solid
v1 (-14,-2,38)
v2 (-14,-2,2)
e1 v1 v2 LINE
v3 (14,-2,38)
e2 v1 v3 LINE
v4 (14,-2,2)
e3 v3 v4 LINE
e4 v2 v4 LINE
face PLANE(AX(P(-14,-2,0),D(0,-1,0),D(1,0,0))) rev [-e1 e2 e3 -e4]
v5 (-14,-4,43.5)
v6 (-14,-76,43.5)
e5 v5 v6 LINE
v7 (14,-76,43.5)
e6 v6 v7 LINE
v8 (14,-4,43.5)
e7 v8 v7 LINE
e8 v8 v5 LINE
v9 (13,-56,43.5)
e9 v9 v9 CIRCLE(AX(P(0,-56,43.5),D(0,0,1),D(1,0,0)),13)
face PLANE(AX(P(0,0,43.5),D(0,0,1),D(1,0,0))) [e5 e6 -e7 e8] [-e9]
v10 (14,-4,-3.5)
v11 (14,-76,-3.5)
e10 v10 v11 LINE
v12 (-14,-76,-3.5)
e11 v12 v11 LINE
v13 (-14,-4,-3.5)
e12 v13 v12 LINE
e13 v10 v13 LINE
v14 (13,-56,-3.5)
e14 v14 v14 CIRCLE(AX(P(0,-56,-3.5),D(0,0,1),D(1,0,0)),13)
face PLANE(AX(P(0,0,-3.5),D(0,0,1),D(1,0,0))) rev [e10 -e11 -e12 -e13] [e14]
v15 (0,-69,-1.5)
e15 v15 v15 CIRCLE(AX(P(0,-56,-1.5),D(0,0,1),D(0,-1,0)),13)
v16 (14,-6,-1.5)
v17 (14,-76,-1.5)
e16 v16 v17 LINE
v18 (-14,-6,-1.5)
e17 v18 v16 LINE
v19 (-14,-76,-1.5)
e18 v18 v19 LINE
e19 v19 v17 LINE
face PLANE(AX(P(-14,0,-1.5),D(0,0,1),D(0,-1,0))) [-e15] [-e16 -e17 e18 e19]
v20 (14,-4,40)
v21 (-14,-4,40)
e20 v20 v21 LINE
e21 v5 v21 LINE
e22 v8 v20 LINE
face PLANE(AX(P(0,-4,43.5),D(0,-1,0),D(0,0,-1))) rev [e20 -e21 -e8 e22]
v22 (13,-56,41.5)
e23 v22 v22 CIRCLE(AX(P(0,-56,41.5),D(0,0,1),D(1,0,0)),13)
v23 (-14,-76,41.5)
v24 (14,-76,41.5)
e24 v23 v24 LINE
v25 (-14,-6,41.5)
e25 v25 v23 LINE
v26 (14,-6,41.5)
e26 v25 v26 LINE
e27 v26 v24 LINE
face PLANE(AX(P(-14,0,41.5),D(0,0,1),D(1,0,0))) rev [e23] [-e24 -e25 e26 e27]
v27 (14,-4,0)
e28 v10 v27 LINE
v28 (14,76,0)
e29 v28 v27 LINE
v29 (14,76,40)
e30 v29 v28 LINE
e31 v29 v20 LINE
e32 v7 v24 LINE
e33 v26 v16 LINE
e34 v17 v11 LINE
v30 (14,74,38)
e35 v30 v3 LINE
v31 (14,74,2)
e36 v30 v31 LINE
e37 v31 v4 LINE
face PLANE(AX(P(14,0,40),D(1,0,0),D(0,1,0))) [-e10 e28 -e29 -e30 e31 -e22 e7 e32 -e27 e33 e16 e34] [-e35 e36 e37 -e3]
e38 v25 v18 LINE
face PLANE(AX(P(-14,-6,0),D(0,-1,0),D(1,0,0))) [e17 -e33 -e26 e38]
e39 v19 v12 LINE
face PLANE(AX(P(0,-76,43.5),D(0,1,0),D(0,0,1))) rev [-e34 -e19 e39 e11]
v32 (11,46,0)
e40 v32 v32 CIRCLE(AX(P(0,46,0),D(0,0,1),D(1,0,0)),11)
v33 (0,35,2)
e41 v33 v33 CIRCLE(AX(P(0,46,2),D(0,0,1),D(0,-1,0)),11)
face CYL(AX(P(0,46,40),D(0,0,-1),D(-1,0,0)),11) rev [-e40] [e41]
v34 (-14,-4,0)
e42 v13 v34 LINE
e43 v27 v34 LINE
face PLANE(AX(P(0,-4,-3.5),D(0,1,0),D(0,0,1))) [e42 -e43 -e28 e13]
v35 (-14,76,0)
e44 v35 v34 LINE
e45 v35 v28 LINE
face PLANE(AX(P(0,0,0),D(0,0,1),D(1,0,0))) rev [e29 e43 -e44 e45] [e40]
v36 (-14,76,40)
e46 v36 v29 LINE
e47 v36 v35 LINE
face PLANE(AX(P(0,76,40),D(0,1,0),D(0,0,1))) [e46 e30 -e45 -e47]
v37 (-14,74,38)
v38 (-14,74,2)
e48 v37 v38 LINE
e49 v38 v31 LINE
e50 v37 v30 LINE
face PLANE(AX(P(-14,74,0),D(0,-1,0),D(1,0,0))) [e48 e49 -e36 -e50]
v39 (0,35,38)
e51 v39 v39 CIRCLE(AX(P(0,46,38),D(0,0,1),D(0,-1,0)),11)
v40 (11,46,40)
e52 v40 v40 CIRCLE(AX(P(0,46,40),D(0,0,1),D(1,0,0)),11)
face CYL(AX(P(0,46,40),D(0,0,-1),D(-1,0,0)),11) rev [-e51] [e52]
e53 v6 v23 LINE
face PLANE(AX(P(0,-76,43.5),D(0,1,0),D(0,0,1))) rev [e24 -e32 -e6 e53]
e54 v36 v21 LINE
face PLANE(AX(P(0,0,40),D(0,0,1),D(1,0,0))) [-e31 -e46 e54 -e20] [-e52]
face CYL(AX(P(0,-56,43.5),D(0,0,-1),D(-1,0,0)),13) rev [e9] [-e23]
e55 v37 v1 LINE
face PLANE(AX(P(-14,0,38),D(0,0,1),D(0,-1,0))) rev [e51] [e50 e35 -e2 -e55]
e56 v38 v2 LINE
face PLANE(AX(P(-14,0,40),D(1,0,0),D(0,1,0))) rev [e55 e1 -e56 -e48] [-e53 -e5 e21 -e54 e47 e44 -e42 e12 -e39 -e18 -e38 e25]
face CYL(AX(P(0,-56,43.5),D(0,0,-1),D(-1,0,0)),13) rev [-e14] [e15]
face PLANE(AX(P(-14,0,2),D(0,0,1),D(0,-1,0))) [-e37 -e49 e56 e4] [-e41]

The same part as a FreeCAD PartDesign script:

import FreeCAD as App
import Part
import Sketcher
from FreeCAD import Vector


def add_polygon(sketch, points):
    """Adds a closed chain of lines whose ends are joined by coincident constraints."""
    first, n = sketch.GeometryCount, len(points)
    for a, b in zip(points, points[1:] + points[:1]):
        sketch.addGeometry(Part.LineSegment(App.Vector(*a, 0), App.Vector(*b, 0)), False)
    for i in range(n):
        sketch.addConstraint(Sketcher.Constraint("Coincident", first + i, 2, first + (i + 1) % n, 1))

doc = App.newDocument("Part")
body = doc.addObject("PartDesign::Body", "Body")

# Sketch on XY plane
sketch1 = body.newObject("Sketcher::SketchObject", "Sketch")
sketch1.AttachmentSupport = (doc.getObject("XY_Plane"), [""])
sketch1.MapMode = "FlatFace"
add_polygon(sketch1, [(-14, 76), (-14, -4), (14, -4), (14, 76)])  # lines 0-3
sketch1.addGeometry(Part.Circle(Vector(0, 46, 0), Vector(0, 0, 1), 11), False)  # 4
sketch1.addConstraint([
    Sketcher.Constraint("Vertical", 0),
    Sketcher.Constraint("Horizontal", 1),
    Sketcher.Constraint("Vertical", 2),
    Sketcher.Constraint("Horizontal", 3),
    Sketcher.Constraint("PointOnObject", 4, 3, -2),
    Sketcher.Constraint("Diameter", 4, 22.0),
    Sketcher.Constraint("DistanceX", 1, 1, 1, 2, 28.0),
    Sketcher.Constraint("DistanceY", 0, 2, 0, 1, 80.0),
    Sketcher.Constraint("DistanceY", -1, 1, 4, 3, 46.0),
    Sketcher.Constraint("DistanceX", 0, 2, -1, 1, 14.0),
    Sketcher.Constraint("DistanceY", 0, 2, -1, 1, 4.0),
])
pad1 = body.newObject("PartDesign::Pad", "Pad")
pad1.Profile = sketch1
pad1.Length = 40

# Sketch on XY plane
sketch2 = body.newObject("Sketcher::SketchObject", "Sketch001")
sketch2.AttachmentSupport = (doc.getObject("XY_Plane"), [""])
sketch2.MapMode = "FlatFace"
add_polygon(sketch2, [(-14, -4), (-14, -76), (14, -76), (14, -4)])  # lines 0-3
sketch2.addGeometry(Part.Circle(Vector(0, -56, 0), Vector(0, 0, 1), 13), False)  # 4
sketch2.addConstraint([
    Sketcher.Constraint("Vertical", 0),
    Sketcher.Constraint("Horizontal", 1),
    Sketcher.Constraint("Vertical", 2),
    Sketcher.Constraint("Horizontal", 3),
    Sketcher.Constraint("PointOnObject", 4, 3, -2),
    Sketcher.Constraint("Diameter", 4, 26.0),
    Sketcher.Constraint("DistanceX", 1, 1, 1, 2, 28.0),
    Sketcher.Constraint("DistanceY", 0, 2, 0, 1, 72.0),
    Sketcher.Constraint("DistanceY", 4, 3, -1, 1, 56.0),
    Sketcher.Constraint("DistanceX", 0, 2, -1, 1, 14.0),
    Sketcher.Constraint("DistanceY", 0, 2, -1, 1, 76.0),
])
pad2 = body.newObject("PartDesign::Pad", "Pad001")
pad2.Profile = sketch2
pad2.Length = 43.5

# Sketch on XY plane
sketch3 = body.newObject("Sketcher::SketchObject", "Sketch002")
sketch3.AttachmentSupport = (doc.getObject("XY_Plane"), [""])
sketch3.MapMode = "FlatFace"
sketch3.AttachmentOffset = App.Placement(Vector(0, 0, -3.5), App.Rotation())
add_polygon(sketch3, [(-14, -4), (-14, -76), (14, -76), (14, -4)])  # lines 0-3
sketch3.addGeometry(Part.Circle(Vector(0, -56, 0), Vector(0, 0, 1), 13), False)  # 4
sketch3.addConstraint([
    Sketcher.Constraint("Vertical", 0),
    Sketcher.Constraint("Horizontal", 1),
    Sketcher.Constraint("Vertical", 2),
    Sketcher.Constraint("Horizontal", 3),
    Sketcher.Constraint("PointOnObject", 4, 3, -2),
    Sketcher.Constraint("Diameter", 4, 26.0),
    Sketcher.Constraint("DistanceX", 1, 1, 1, 2, 28.0),
    Sketcher.Constraint("DistanceY", 0, 2, 0, 1, 72.0),
    Sketcher.Constraint("DistanceY", 4, 3, -1, 1, 56.0),
    Sketcher.Constraint("DistanceX", 0, 2, -1, 1, 14.0),
    Sketcher.Constraint("DistanceY", 0, 2, -1, 1, 76.0),
])
pad3 = body.newObject("PartDesign::Pad", "Pad002")
pad3.Profile = sketch3
pad3.Length = 3.5

# Sketch on YZ plane
sketch4 = body.newObject("Sketcher::SketchObject", "Sketch003")
sketch4.AttachmentSupport = (doc.getObject("YZ_Plane"), [""])
sketch4.MapMode = "FlatFace"
sketch4.AttachmentOffset = App.Placement(Vector(0, 0, 14), App.Rotation())
add_polygon(sketch4, [(74, 38), (-2, 38), (-2, 2), (74, 2)])  # lines 0-3
sketch4.addConstraint([
    Sketcher.Constraint("Horizontal", 0),
    Sketcher.Constraint("Vertical", 1),
    Sketcher.Constraint("Horizontal", 2),
    Sketcher.Constraint("Vertical", 3),
    Sketcher.Constraint("DistanceX", 0, 2, 0, 1, 76.0),
    Sketcher.Constraint("DistanceY", 1, 2, 1, 1, 36.0),
    Sketcher.Constraint("DistanceX", 0, 2, -1, 1, 2.0),
    Sketcher.Constraint("DistanceY", -1, 1, 0, 2, 38.0),
])
pocket1 = body.newObject("PartDesign::Pocket", "Pocket")
pocket1.Profile = sketch4
pocket1.Length = 28

# Sketch on YZ plane
sketch5 = body.newObject("Sketcher::SketchObject", "Sketch004")
sketch5.AttachmentSupport = (doc.getObject("YZ_Plane"), [""])
sketch5.MapMode = "FlatFace"
sketch5.AttachmentOffset = App.Placement(Vector(0, 0, 14), App.Rotation())
add_polygon(sketch5, [(-76, -1.5), (-6, -1.5), (-6, 41.5), (-76, 41.5)])  # lines 0-3
sketch5.addConstraint([
    Sketcher.Constraint("Horizontal", 0),
    Sketcher.Constraint("Vertical", 1),
    Sketcher.Constraint("Horizontal", 2),
    Sketcher.Constraint("Vertical", 3),
    Sketcher.Constraint("DistanceX", 0, 1, 0, 2, 70.0),
    Sketcher.Constraint("DistanceY", 1, 1, 1, 2, 43.0),
    Sketcher.Constraint("DistanceX", 0, 2, -1, 1, 6.0),
    Sketcher.Constraint("DistanceY", 0, 2, -1, 1, 1.5),
])
pocket2 = body.newObject("PartDesign::Pocket", "Pocket001")
pocket2.Profile = sketch5
pocket2.Length = 28

doc.recompute()
